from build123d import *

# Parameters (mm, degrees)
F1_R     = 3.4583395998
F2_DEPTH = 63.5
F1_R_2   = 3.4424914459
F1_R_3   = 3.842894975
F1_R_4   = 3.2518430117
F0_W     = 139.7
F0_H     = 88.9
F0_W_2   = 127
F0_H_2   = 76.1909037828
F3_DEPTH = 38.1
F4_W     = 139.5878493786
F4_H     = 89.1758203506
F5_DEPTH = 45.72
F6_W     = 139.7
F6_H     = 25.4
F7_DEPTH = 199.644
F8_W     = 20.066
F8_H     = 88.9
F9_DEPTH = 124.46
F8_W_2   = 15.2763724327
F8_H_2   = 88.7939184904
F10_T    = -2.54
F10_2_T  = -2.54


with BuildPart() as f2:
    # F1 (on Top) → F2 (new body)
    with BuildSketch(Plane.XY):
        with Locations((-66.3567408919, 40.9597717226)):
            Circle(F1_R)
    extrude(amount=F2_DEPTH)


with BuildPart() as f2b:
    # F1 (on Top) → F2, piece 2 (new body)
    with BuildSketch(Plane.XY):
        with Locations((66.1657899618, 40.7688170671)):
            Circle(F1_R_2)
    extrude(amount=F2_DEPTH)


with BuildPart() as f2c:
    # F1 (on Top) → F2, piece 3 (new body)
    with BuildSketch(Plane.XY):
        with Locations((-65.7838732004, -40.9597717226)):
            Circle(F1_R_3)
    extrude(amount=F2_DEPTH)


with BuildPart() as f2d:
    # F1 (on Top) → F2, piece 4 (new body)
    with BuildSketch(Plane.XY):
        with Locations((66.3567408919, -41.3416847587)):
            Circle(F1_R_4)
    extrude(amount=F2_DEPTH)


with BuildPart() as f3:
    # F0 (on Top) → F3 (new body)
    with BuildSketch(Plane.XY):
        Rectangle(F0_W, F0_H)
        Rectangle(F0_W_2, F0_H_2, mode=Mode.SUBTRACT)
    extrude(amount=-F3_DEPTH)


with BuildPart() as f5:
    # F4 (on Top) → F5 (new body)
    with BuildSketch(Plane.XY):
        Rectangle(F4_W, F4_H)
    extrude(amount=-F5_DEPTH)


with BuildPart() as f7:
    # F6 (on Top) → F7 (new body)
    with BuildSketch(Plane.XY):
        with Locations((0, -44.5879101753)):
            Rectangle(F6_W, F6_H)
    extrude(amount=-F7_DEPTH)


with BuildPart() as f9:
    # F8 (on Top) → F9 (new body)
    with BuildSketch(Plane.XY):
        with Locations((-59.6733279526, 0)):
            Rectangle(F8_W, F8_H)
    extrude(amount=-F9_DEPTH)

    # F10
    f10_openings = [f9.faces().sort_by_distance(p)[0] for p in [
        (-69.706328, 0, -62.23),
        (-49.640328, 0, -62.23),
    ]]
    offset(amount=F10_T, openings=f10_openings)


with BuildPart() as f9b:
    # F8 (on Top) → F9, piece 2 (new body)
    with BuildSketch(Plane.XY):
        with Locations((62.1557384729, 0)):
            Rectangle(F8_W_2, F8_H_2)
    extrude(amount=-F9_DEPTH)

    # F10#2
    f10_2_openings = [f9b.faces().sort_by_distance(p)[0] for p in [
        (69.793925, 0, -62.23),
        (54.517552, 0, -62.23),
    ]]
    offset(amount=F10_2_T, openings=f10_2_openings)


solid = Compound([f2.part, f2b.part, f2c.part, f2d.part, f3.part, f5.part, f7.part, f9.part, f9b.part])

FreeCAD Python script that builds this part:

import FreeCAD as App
import Part
import Sketcher
from FreeCAD import Vector
Q = App.Units.Quantity


def faces_at(feature, points):
    """Names of the faces that lie closest to the given points."""
    faces = feature.Shape.Faces
    near = lambda p: min(range(len(faces)), key=lambda i: faces[i].distToShape(Part.Vertex(*p))[0])
    return sorted({f"Face{near(p) + 1}" for p in points})

doc = App.newDocument("Part")
params = doc.addObject("Spreadsheet::Sheet", "Params")
for row, (alias, value) in enumerate([
    ("pad1_length", "2.5 in"),
    ("pad2_length", "2.5 in"),
    ("pad3_length", "2.5 in"),
    ("pad4_length", "2.5 in"),
    ("sketch5_width", "5 in"),
    ("sketch5_width2", "5.5 in"),
    ("sketch5_height", "3.5 in"),
    ("pad5_length", "1.5 in"),
    ("pad6_length", "1.8 in"),
    ("sketch7_height", "1 in"),
    ("sketch7_width", "5.5 in"),
    ("pad7_length", "7.86 in"),
    ("sketch8_height", "3.5 in"),
    ("sketch8_width", "0.79 in"),
    ("pad8_length", "4.9 in"),
    ("thickness_wall", "0.1 in"),
    ("pad9_length", "4.9 in"),
    ("thickness2_wall", "0.1 in"),
], start=1):
    params.set(f"A{row}", alias)
    params.set(f"B{row}", "=" + value)
    params.setAlias(f"B{row}", alias)

body = doc.addObject("PartDesign::Body", "Body")

# Sketch on XY plane
sketch1 = body.newObject("Sketcher::SketchObject", "Sketch")
sketch1.AttachmentSupport = (doc.getObject("XY_Plane"), [""])
sketch1.MapMode = "FlatFace"
sketch1.addGeometry(Part.Circle(Vector(-66.4, 41, 0), Vector(0, 0, 1), 3.5), False)
sketch1.addConstraint(Sketcher.Constraint("Diameter", 0, 6.916679))
sketch1.addConstraint(Sketcher.Constraint("DistanceX", 0, 3, -1, 1, 66.356741))
sketch1.addConstraint(Sketcher.Constraint("DistanceY", -1, 1, 0, 3, 40.959772))
pad1 = body.newObject("PartDesign::Pad", "Pad")
pad1.Profile = sketch1
pad1.setExpression("Length", "Params.pad1_length")
body2 = doc.addObject("PartDesign::Body", "Body001")

# Sketch on XY plane
sketch2 = body2.newObject("Sketcher::SketchObject", "Sketch001")
sketch2.AttachmentSupport = (doc.getObject("XY_Plane001"), [""])
sketch2.MapMode = "FlatFace"
sketch2.addGeometry(Part.Circle(Vector(66.2, 40.8, 0), Vector(0, 0, 1), 3.4), False)
sketch2.addConstraint(Sketcher.Constraint("Diameter", 0, 6.884983))
sketch2.addConstraint(Sketcher.Constraint("DistanceX", -1, 1, 0, 3, 66.16579))
sketch2.addConstraint(Sketcher.Constraint("DistanceY", -1, 1, 0, 3, 40.768817))
pad2 = body2.newObject("PartDesign::Pad", "Pad001")
pad2.Profile = sketch2
pad2.setExpression("Length", "Params.pad2_length")
body3 = doc.addObject("PartDesign::Body", "Body002")

# Sketch on XY plane
sketch3 = body3.newObject("Sketcher::SketchObject", "Sketch002")
sketch3.AttachmentSupport = (doc.getObject("XY_Plane002"), [""])
sketch3.MapMode = "FlatFace"
sketch3.addGeometry(Part.Circle(Vector(-65.8, -41, 0), Vector(0, 0, 1), 3.8), False)
sketch3.addConstraint(Sketcher.Constraint("Diameter", 0, 7.68579))
sketch3.addConstraint(Sketcher.Constraint("DistanceY", 0, 3, -1, 1, 40.959772))
sketch3.addConstraint(Sketcher.Constraint("DistanceX", 0, 3, -1, 1, 65.783873))
pad3 = body3.newObject("PartDesign::Pad", "Pad002")
pad3.Profile = sketch3
pad3.setExpression("Length", "Params.pad3_length")
body4 = doc.addObject("PartDesign::Body", "Body003")

# Sketch on XY plane
sketch4 = body4.newObject("Sketcher::SketchObject", "Sketch003")
sketch4.AttachmentSupport = (doc.getObject("XY_Plane003"), [""])
sketch4.MapMode = "FlatFace"
sketch4.addGeometry(Part.Circle(Vector(66.4, -41.3, 0), Vector(0, 0, 1), 3.3), False)
sketch4.addConstraint(Sketcher.Constraint("Diameter", 0, 6.503686))
sketch4.addConstraint(Sketcher.Constraint("DistanceX", -1, 1, 0, 3, 66.356741))
sketch4.addConstraint(Sketcher.Constraint("DistanceY", 0, 3, -1, 1, 41.341685))
pad4 = body4.newObject("PartDesign::Pad", "Pad003")
pad4.Profile = sketch4
pad4.setExpression("Length", "Params.pad4_length")
body5 = doc.addObject("PartDesign::Body", "Body004")

# Sketch on XY plane
sketch5 = body5.newObject("Sketcher::SketchObject", "Sketch004")
sketch5.AttachmentSupport = (doc.getObject("XY_Plane004"), [""])
sketch5.MapMode = "FlatFace"
sketch5.addGeometry(Part.LineSegment(Vector(-70, 44, 0), Vector(-70, -44, 0)), False)
sketch5.addGeometry(Part.LineSegment(Vector(-70, -44, 0), Vector(70, -44, 0)), False)
sketch5.addGeometry(Part.LineSegment(Vector(70, -44, 0), Vector(70, 44, 0)), False)
sketch5.addGeometry(Part.LineSegment(Vector(70, 44, 0), Vector(-70, 44, 0)), False)
sketch5.addGeometry(Part.LineSegment(Vector(64, -38, 0), Vector(-64, -38, 0)), False)
sketch5.addGeometry(Part.LineSegment(Vector(-64, -38, 0), Vector(-64, 38, 0)), False)
sketch5.addGeometry(Part.LineSegment(Vector(-64, 38, 0), Vector(64, 38, 0)), False)
sketch5.addGeometry(Part.LineSegment(Vector(64, 38, 0), Vector(64, -38, 0)), False)
sketch5.addConstraint(Sketcher.Constraint("Coincident", 0, 2, 1, 1))
sketch5.addConstraint(Sketcher.Constraint("Coincident", 1, 2, 2, 1))
sketch5.addConstraint(Sketcher.Constraint("Coincident", 2, 2, 3, 1))
sketch5.addConstraint(Sketcher.Constraint("Coincident", 3, 2, 0, 1))
sketch5.addConstraint(Sketcher.Constraint("Coincident", 4, 2, 5, 1))
sketch5.addConstraint(Sketcher.Constraint("Coincident", 5, 2, 6, 1))
sketch5.addConstraint(Sketcher.Constraint("Coincident", 6, 2, 7, 1))
sketch5.addConstraint(Sketcher.Constraint("Coincident", 7, 2, 4, 1))
sketch5.addConstraint(Sketcher.Constraint("Vertical", 0))
sketch5.addConstraint(Sketcher.Constraint("Horizontal", 1))
sketch5.addConstraint(Sketcher.Constraint("Vertical", 2))
sketch5.addConstraint(Sketcher.Constraint("Horizontal", 3))
sketch5.addConstraint(Sketcher.Constraint("Horizontal", 4))
sketch5.addConstraint(Sketcher.Constraint("Vertical", 5))
sketch5.addConstraint(Sketcher.Constraint("Horizontal", 6))
sketch5.addConstraint(Sketcher.Constraint("Vertical", 7))
sketch5.addConstraint(Sketcher.Constraint("Symmetric", 0, 2, 2, 2, -1, 1))
sketch5.addConstraint(Sketcher.Constraint("Symmetric", 4, 2, 6, 2, -1, 1))
sketch5.addConstraint(Sketcher.Constraint("DistanceX", 4, 2, 4, 1, Q("5 in")))
sketch5.addConstraint(Sketcher.Constraint("DistanceX", 1, 1, 1, 2, Q("5.5 in")))
sketch5.addConstraint(Sketcher.Constraint("DistanceY", 0, 2, 0, 1, Q("3.5 in")))
sketch5.addConstraint(Sketcher.Constraint("DistanceY", 5, 1, 5, 2, 76.190904))
sketch5.setExpression("Constraints[18]", "Params.sketch5_width")
sketch5.setExpression("Constraints[19]", "Params.sketch5_width2")
sketch5.setExpression("Constraints[20]", "Params.sketch5_height")
pad5 = body5.newObject("PartDesign::Pad", "Pad004")
pad5.Profile = sketch5
pad5.setExpression("Length", "Params.pad5_length")
pad5.Reversed = True
body6 = doc.addObject("PartDesign::Body", "Body005")

# Sketch on XY plane
sketch6 = body6.newObject("Sketcher::SketchObject", "Sketch005")
sketch6.AttachmentSupport = (doc.getObject("XY_Plane005"), [""])
sketch6.MapMode = "FlatFace"
sketch6.addGeometry(Part.LineSegment(Vector(-70, 45, 0), Vector(-70, -45, 0)), False)
sketch6.addGeometry(Part.LineSegment(Vector(-70, -45, 0), Vector(70, -45, 0)), False)
sketch6.addGeometry(Part.LineSegment(Vector(70, -45, 0), Vector(70, 45, 0)), False)
sketch6.addGeometry(Part.LineSegment(Vector(70, 45, 0), Vector(-70, 45, 0)), False)
sketch6.addConstraint(Sketcher.Constraint("Coincident", 0, 2, 1, 1))
sketch6.addConstraint(Sketcher.Constraint("Coincident", 1, 2, 2, 1))
sketch6.addConstraint(Sketcher.Constraint("Coincident", 2, 2, 3, 1))
sketch6.addConstraint(Sketcher.Constraint("Coincident", 3, 2, 0, 1))
sketch6.addConstraint(Sketcher.Constraint("Vertical", 0))
sketch6.addConstraint(Sketcher.Constraint("Horizontal", 1))
sketch6.addConstraint(Sketcher.Constraint("Vertical", 2))
sketch6.addConstraint(Sketcher.Constraint("Horizontal", 3))
sketch6.addConstraint(Sketcher.Constraint("Symmetric", 0, 2, 2, 2, -1, 1))
sketch6.addConstraint(Sketcher.Constraint("DistanceX", 1, 1, 1, 2, 139.587849))
sketch6.addConstraint(Sketcher.Constraint("DistanceY", 0, 2, 0, 1, 89.17582))
pad6 = body6.newObject("PartDesign::Pad", "Pad005")
pad6.Profile = sketch6
pad6.setExpression("Length", "Params.pad6_length")
pad6.Reversed = True
body7 = doc.addObject("PartDesign::Body", "Body006")

# Sketch on XY plane
sketch7 = body7.newObject("Sketcher::SketchObject", "Sketch006")
sketch7.AttachmentSupport = (doc.getObject("XY_Plane006"), [""])
sketch7.MapMode = "FlatFace"
sketch7.addGeometry(Part.LineSegment(Vector(-70, -32, 0), Vector(-70, -57, 0)), False)
sketch7.addGeometry(Part.LineSegment(Vector(-70, -57, 0), Vector(70, -57, 0)), False)
sketch7.addGeometry(Part.LineSegment(Vector(70, -57, 0), Vector(70, -32, 0)), False)
sketch7.addGeometry(Part.LineSegment(Vector(70, -32, 0), Vector(-70, -32, 0)), False)
sketch7.addConstraint(Sketcher.Constraint("Coincident", 0, 2, 1, 1))
sketch7.addConstraint(Sketcher.Constraint("Coincident", 1, 2, 2, 1))
sketch7.addConstraint(Sketcher.Constraint("Coincident", 2, 2, 3, 1))
sketch7.addConstraint(Sketcher.Constraint("Coincident", 3, 2, 0, 1))
sketch7.addConstraint(Sketcher.Constraint("Vertical", 0))
sketch7.addConstraint(Sketcher.Constraint("Horizontal", 1))
sketch7.addConstraint(Sketcher.Constraint("Vertical", 2))
sketch7.addConstraint(Sketcher.Constraint("Horizontal", 3))
sketch7.addConstraint(Sketcher.Constraint("DistanceY", 0, 2, 0, 1, Q("1 in")))
sketch7.addConstraint(Sketcher.Constraint("DistanceX", 1, 1, 1, 2, Q("5.5 in")))
sketch7.addConstraint(Sketcher.Constraint("DistanceX", 0, 2, -1, 1, Q("2.75 in")))
sketch7.addConstraint(Sketcher.Constraint("DistanceY", 0, 2, -1, 1, 57.28791))
sketch7.setExpression("Constraints[8]", "Params.sketch7_height")
sketch7.setExpression("Constraints[9]", "Params.sketch7_width")
pad7 = body7.newObject("PartDesign::Pad", "Pad006")
pad7.Profile = sketch7
pad7.setExpression("Length", "Params.pad7_length")
pad7.Reversed = True
body8 = doc.addObject("PartDesign::Body", "Body007")

# Sketch on XY plane
sketch8 = body8.newObject("Sketcher::SketchObject", "Sketch007")
sketch8.AttachmentSupport = (doc.getObject("XY_Plane007"), [""])
sketch8.MapMode = "FlatFace"
sketch8.addGeometry(Part.LineSegment(Vector(-70, 44, 0), Vector(-70, -44, 0)), False)
sketch8.addGeometry(Part.LineSegment(Vector(-70, -44, 0), Vector(-50, -44, 0)), False)
sketch8.addGeometry(Part.LineSegment(Vector(-50, -44, 0), Vector(-50, 44, 0)), False)
sketch8.addGeometry(Part.LineSegment(Vector(-50, 44, 0), Vector(-70, 44, 0)), False)
sketch8.addConstraint(Sketcher.Constraint("Coincident", 0, 2, 1, 1))
sketch8.addConstraint(Sketcher.Constraint("Coincident", 1, 2, 2, 1))
sketch8.addConstraint(Sketcher.Constraint("Coincident", 2, 2, 3, 1))
sketch8.addConstraint(Sketcher.Constraint("Coincident", 3, 2, 0, 1))
sketch8.addConstraint(Sketcher.Constraint("Vertical", 0))
sketch8.addConstraint(Sketcher.Constraint("Horizontal", 1))
sketch8.addConstraint(Sketcher.Constraint("Vertical", 2))
sketch8.addConstraint(Sketcher.Constraint("Horizontal", 3))
sketch8.addConstraint(Sketcher.Constraint("DistanceY", 0, 2, 0, 1, Q("3.5 in")))
sketch8.addConstraint(Sketcher.Constraint("DistanceX", 1, 1, 1, 2, Q("0.79 in")))
sketch8.addConstraint(Sketcher.Constraint("DistanceY", 0, 2, -1, 1, Q("1.75 in")))
sketch8.addConstraint(Sketcher.Constraint("DistanceX", 0, 2, -1, 1, 69.706328))
sketch8.setExpression("Constraints[8]", "Params.sketch8_height")
sketch8.setExpression("Constraints[9]", "Params.sketch8_width")
pad8 = body8.newObject("PartDesign::Pad", "Pad007")
pad8.Profile = sketch8
pad8.setExpression("Length", "Params.pad8_length")
pad8.Reversed = True
doc.recompute()

thickness = body8.newObject("PartDesign::Thickness", "Thickness")
thickness.Base = (pad8, faces_at(pad8, [(-69.706, 0, -62.23), (-49.64, 0, -62.23)]))
thickness.setExpression("Value", "Params.thickness_wall")
thickness.Reversed = True
thickness.Join = "Arc"
body9 = doc.addObject("PartDesign::Body", "Body008")

# Sketch on XY plane
sketch9 = body9.newObject("Sketcher::SketchObject", "Sketch008")
sketch9.AttachmentSupport = (doc.getObject("XY_Plane008"), [""])
sketch9.MapMode = "FlatFace"
sketch9.addGeometry(Part.LineSegment(Vector(55, 44, 0), Vector(55, -44, 0)), False)
sketch9.addGeometry(Part.LineSegment(Vector(55, -44, 0), Vector(70, -44, 0)), False)
sketch9.addGeometry(Part.LineSegment(Vector(70, -44, 0), Vector(70, 44, 0)), False)
sketch9.addGeometry(Part.LineSegment(Vector(70, 44, 0), Vector(55, 44, 0)), False)
sketch9.addConstraint(Sketcher.Constraint("Coincident", 0, 2, 1, 1))
sketch9.addConstraint(Sketcher.Constraint("Coincident", 1, 2, 2, 1))
sketch9.addConstraint(Sketcher.Constraint("Coincident", 2, 2, 3, 1))
sketch9.addConstraint(Sketcher.Constraint("Coincident", 3, 2, 0, 1))
sketch9.addConstraint(Sketcher.Constraint("Vertical", 0))
sketch9.addConstraint(Sketcher.Constraint("Horizontal", 1))
sketch9.addConstraint(Sketcher.Constraint("Vertical", 2))
sketch9.addConstraint(Sketcher.Constraint("Horizontal", 3))
sketch9.addConstraint(Sketcher.Constraint("DistanceY", 0, 2, 0, 1, 88.793918))
sketch9.addConstraint(Sketcher.Constraint("DistanceX", 1, 1, 1, 2, 15.276372))
sketch9.addConstraint(Sketcher.Constraint("DistanceY", 0, 2, -1, 1, 44.396959))
sketch9.addConstraint(Sketcher.Constraint("DistanceX", -1, 1, 0, 2, 54.517552))
pad9 = body9.newObject("PartDesign::Pad", "Pad008")
pad9.Profile = sketch9
pad9.setExpression("Length", "Params.pad9_length")
pad9.Reversed = True
doc.recompute()

thickness2 = body9.newObject("PartDesign::Thickness", "Thickness001")
thickness2.Base = (pad9, faces_at(pad9, [(69.794, 0, -62.23), (54.518, 0, -62.23)]))
thickness2.setExpression("Value", "Params.thickness2_wall")
thickness2.Reversed = True
thickness2.Join = "Arc"

doc.recompute()
